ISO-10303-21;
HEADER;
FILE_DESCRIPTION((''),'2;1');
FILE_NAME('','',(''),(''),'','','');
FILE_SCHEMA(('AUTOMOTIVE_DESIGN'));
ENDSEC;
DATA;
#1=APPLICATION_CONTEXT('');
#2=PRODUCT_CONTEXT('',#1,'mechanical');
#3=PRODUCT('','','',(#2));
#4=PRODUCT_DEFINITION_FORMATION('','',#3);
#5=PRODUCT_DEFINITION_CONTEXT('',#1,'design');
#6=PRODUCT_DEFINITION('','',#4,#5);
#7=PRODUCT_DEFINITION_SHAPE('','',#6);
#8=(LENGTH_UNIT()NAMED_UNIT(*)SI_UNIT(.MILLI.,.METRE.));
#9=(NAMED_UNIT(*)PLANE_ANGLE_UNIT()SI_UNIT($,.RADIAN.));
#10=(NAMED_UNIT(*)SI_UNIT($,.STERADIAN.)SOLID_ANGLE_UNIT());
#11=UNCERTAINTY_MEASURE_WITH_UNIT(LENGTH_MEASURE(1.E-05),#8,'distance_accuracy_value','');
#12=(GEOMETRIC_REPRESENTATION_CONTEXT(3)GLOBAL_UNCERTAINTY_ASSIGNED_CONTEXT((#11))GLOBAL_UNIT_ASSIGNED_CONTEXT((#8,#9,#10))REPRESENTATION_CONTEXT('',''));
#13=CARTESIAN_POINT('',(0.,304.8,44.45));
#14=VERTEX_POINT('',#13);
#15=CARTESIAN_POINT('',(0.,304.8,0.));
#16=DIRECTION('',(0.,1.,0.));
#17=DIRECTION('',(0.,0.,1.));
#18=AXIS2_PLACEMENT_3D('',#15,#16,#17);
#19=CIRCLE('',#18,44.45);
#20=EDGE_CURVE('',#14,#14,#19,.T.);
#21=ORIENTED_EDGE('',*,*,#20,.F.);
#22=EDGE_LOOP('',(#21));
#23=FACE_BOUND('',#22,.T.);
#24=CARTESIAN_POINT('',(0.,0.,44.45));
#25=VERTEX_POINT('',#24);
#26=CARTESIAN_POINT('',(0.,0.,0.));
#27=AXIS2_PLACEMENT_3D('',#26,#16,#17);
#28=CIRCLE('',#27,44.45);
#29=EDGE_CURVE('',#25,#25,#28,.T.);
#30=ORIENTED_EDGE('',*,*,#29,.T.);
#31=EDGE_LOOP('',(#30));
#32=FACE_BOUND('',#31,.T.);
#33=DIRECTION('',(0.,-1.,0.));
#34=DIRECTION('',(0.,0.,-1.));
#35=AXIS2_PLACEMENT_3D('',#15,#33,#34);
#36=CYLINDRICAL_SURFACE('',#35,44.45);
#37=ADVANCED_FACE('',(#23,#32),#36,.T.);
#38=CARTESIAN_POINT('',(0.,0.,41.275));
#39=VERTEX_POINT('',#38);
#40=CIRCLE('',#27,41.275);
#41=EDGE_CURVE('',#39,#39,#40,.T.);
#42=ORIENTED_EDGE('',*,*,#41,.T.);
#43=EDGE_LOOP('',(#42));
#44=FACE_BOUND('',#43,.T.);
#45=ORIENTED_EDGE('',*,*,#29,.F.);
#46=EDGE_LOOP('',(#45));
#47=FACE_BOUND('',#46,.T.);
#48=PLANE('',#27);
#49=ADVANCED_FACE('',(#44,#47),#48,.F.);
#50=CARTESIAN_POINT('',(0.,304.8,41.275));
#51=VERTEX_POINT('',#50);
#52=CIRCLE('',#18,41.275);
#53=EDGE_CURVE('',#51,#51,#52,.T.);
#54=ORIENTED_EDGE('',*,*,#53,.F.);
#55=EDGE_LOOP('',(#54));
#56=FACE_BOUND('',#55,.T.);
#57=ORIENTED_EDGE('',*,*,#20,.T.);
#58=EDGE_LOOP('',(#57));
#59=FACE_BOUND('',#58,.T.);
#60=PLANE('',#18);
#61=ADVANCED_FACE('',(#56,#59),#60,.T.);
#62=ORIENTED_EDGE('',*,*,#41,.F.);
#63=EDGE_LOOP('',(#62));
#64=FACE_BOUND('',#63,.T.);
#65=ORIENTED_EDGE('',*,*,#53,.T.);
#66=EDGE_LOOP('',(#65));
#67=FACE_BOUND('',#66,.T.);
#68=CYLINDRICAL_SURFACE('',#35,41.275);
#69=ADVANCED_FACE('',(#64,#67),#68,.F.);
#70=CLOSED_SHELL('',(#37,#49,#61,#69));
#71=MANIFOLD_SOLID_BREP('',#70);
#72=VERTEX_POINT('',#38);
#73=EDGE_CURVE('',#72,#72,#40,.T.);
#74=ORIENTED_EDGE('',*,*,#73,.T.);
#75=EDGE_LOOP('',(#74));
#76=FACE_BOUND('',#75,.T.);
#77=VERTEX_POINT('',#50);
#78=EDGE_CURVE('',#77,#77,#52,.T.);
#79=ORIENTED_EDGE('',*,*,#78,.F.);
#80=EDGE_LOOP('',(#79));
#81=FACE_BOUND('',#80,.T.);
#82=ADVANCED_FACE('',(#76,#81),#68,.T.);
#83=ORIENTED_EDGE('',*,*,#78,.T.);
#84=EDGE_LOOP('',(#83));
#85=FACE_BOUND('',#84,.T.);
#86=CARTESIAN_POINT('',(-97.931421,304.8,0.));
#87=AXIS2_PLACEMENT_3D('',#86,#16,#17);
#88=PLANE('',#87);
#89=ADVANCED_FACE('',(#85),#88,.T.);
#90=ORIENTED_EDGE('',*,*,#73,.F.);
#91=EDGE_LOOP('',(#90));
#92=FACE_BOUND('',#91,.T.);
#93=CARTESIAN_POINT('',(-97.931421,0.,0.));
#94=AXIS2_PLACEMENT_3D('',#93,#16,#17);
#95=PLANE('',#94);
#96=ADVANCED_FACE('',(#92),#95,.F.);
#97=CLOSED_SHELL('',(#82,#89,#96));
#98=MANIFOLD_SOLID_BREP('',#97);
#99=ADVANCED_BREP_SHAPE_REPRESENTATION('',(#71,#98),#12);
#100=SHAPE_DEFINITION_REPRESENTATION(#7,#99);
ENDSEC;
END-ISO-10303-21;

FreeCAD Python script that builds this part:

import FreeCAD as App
import Part
import Sketcher
from FreeCAD import Vector
Q = App.Units.Quantity

doc = App.newDocument("Part")
body = doc.addObject("PartDesign::Body", "Body")

# Sketch on XZ plane
sketch1 = doc.addObject("Sketcher::SketchObject", "Sketch")
body.addObject(sketch1)
sketch1.AttachmentSupport = (doc.XZ_Plane, [""])
sketch1.MapMode = "FlatFace"
sketch1.addGeometry([
    Part.Circle(Vector(0, 0, 0), Vector(0, 0, 1), 44),
    Part.Circle(Vector(0, 0, 0), Vector(0, 0, 1), 41),
], False)
sketch1.addConstraint([
    Sketcher.Constraint("Coincident", 0, 3, -1, 1),
    Sketcher.Constraint("Coincident", 1, 3, -1, 1),
    Sketcher.Constraint("Diameter", 0, Q("3.5 in")),
    Sketcher.Constraint("Diameter", 1, Q("3.25 in")),
])
pad1 = doc.addObject("PartDesign::Pad", "Pad")
body.addObject(pad1)
pad1.Profile = sketch1
pad1.Length = Q("12 in")
pad1.Reversed = True
body2 = doc.addObject("PartDesign::Body", "Body001")

# Sketch on XZ plane
sketch2 = doc.addObject("Sketcher::SketchObject", "Sketch001")
body2.addObject(sketch2)
sketch2.AttachmentSupport = (doc.getObject("XZ_Plane001"), [""])
sketch2.MapMode = "FlatFace"
sketch2.addGeometry(Part.Circle(Vector(0, 0, 0), Vector(0, 0, 1), 41), False)
sketch2.addConstraint([
    Sketcher.Constraint("Coincident", 0, 3, -1, 1),
    Sketcher.Constraint("Diameter", 0, Q("3.25 in")),
])
pad2 = doc.addObject("PartDesign::Pad", "Pad001")
body2.addObject(pad2)
pad2.Profile = sketch2
pad2.Length = Q("12 in")
pad2.Reversed = True

doc.recompute()
